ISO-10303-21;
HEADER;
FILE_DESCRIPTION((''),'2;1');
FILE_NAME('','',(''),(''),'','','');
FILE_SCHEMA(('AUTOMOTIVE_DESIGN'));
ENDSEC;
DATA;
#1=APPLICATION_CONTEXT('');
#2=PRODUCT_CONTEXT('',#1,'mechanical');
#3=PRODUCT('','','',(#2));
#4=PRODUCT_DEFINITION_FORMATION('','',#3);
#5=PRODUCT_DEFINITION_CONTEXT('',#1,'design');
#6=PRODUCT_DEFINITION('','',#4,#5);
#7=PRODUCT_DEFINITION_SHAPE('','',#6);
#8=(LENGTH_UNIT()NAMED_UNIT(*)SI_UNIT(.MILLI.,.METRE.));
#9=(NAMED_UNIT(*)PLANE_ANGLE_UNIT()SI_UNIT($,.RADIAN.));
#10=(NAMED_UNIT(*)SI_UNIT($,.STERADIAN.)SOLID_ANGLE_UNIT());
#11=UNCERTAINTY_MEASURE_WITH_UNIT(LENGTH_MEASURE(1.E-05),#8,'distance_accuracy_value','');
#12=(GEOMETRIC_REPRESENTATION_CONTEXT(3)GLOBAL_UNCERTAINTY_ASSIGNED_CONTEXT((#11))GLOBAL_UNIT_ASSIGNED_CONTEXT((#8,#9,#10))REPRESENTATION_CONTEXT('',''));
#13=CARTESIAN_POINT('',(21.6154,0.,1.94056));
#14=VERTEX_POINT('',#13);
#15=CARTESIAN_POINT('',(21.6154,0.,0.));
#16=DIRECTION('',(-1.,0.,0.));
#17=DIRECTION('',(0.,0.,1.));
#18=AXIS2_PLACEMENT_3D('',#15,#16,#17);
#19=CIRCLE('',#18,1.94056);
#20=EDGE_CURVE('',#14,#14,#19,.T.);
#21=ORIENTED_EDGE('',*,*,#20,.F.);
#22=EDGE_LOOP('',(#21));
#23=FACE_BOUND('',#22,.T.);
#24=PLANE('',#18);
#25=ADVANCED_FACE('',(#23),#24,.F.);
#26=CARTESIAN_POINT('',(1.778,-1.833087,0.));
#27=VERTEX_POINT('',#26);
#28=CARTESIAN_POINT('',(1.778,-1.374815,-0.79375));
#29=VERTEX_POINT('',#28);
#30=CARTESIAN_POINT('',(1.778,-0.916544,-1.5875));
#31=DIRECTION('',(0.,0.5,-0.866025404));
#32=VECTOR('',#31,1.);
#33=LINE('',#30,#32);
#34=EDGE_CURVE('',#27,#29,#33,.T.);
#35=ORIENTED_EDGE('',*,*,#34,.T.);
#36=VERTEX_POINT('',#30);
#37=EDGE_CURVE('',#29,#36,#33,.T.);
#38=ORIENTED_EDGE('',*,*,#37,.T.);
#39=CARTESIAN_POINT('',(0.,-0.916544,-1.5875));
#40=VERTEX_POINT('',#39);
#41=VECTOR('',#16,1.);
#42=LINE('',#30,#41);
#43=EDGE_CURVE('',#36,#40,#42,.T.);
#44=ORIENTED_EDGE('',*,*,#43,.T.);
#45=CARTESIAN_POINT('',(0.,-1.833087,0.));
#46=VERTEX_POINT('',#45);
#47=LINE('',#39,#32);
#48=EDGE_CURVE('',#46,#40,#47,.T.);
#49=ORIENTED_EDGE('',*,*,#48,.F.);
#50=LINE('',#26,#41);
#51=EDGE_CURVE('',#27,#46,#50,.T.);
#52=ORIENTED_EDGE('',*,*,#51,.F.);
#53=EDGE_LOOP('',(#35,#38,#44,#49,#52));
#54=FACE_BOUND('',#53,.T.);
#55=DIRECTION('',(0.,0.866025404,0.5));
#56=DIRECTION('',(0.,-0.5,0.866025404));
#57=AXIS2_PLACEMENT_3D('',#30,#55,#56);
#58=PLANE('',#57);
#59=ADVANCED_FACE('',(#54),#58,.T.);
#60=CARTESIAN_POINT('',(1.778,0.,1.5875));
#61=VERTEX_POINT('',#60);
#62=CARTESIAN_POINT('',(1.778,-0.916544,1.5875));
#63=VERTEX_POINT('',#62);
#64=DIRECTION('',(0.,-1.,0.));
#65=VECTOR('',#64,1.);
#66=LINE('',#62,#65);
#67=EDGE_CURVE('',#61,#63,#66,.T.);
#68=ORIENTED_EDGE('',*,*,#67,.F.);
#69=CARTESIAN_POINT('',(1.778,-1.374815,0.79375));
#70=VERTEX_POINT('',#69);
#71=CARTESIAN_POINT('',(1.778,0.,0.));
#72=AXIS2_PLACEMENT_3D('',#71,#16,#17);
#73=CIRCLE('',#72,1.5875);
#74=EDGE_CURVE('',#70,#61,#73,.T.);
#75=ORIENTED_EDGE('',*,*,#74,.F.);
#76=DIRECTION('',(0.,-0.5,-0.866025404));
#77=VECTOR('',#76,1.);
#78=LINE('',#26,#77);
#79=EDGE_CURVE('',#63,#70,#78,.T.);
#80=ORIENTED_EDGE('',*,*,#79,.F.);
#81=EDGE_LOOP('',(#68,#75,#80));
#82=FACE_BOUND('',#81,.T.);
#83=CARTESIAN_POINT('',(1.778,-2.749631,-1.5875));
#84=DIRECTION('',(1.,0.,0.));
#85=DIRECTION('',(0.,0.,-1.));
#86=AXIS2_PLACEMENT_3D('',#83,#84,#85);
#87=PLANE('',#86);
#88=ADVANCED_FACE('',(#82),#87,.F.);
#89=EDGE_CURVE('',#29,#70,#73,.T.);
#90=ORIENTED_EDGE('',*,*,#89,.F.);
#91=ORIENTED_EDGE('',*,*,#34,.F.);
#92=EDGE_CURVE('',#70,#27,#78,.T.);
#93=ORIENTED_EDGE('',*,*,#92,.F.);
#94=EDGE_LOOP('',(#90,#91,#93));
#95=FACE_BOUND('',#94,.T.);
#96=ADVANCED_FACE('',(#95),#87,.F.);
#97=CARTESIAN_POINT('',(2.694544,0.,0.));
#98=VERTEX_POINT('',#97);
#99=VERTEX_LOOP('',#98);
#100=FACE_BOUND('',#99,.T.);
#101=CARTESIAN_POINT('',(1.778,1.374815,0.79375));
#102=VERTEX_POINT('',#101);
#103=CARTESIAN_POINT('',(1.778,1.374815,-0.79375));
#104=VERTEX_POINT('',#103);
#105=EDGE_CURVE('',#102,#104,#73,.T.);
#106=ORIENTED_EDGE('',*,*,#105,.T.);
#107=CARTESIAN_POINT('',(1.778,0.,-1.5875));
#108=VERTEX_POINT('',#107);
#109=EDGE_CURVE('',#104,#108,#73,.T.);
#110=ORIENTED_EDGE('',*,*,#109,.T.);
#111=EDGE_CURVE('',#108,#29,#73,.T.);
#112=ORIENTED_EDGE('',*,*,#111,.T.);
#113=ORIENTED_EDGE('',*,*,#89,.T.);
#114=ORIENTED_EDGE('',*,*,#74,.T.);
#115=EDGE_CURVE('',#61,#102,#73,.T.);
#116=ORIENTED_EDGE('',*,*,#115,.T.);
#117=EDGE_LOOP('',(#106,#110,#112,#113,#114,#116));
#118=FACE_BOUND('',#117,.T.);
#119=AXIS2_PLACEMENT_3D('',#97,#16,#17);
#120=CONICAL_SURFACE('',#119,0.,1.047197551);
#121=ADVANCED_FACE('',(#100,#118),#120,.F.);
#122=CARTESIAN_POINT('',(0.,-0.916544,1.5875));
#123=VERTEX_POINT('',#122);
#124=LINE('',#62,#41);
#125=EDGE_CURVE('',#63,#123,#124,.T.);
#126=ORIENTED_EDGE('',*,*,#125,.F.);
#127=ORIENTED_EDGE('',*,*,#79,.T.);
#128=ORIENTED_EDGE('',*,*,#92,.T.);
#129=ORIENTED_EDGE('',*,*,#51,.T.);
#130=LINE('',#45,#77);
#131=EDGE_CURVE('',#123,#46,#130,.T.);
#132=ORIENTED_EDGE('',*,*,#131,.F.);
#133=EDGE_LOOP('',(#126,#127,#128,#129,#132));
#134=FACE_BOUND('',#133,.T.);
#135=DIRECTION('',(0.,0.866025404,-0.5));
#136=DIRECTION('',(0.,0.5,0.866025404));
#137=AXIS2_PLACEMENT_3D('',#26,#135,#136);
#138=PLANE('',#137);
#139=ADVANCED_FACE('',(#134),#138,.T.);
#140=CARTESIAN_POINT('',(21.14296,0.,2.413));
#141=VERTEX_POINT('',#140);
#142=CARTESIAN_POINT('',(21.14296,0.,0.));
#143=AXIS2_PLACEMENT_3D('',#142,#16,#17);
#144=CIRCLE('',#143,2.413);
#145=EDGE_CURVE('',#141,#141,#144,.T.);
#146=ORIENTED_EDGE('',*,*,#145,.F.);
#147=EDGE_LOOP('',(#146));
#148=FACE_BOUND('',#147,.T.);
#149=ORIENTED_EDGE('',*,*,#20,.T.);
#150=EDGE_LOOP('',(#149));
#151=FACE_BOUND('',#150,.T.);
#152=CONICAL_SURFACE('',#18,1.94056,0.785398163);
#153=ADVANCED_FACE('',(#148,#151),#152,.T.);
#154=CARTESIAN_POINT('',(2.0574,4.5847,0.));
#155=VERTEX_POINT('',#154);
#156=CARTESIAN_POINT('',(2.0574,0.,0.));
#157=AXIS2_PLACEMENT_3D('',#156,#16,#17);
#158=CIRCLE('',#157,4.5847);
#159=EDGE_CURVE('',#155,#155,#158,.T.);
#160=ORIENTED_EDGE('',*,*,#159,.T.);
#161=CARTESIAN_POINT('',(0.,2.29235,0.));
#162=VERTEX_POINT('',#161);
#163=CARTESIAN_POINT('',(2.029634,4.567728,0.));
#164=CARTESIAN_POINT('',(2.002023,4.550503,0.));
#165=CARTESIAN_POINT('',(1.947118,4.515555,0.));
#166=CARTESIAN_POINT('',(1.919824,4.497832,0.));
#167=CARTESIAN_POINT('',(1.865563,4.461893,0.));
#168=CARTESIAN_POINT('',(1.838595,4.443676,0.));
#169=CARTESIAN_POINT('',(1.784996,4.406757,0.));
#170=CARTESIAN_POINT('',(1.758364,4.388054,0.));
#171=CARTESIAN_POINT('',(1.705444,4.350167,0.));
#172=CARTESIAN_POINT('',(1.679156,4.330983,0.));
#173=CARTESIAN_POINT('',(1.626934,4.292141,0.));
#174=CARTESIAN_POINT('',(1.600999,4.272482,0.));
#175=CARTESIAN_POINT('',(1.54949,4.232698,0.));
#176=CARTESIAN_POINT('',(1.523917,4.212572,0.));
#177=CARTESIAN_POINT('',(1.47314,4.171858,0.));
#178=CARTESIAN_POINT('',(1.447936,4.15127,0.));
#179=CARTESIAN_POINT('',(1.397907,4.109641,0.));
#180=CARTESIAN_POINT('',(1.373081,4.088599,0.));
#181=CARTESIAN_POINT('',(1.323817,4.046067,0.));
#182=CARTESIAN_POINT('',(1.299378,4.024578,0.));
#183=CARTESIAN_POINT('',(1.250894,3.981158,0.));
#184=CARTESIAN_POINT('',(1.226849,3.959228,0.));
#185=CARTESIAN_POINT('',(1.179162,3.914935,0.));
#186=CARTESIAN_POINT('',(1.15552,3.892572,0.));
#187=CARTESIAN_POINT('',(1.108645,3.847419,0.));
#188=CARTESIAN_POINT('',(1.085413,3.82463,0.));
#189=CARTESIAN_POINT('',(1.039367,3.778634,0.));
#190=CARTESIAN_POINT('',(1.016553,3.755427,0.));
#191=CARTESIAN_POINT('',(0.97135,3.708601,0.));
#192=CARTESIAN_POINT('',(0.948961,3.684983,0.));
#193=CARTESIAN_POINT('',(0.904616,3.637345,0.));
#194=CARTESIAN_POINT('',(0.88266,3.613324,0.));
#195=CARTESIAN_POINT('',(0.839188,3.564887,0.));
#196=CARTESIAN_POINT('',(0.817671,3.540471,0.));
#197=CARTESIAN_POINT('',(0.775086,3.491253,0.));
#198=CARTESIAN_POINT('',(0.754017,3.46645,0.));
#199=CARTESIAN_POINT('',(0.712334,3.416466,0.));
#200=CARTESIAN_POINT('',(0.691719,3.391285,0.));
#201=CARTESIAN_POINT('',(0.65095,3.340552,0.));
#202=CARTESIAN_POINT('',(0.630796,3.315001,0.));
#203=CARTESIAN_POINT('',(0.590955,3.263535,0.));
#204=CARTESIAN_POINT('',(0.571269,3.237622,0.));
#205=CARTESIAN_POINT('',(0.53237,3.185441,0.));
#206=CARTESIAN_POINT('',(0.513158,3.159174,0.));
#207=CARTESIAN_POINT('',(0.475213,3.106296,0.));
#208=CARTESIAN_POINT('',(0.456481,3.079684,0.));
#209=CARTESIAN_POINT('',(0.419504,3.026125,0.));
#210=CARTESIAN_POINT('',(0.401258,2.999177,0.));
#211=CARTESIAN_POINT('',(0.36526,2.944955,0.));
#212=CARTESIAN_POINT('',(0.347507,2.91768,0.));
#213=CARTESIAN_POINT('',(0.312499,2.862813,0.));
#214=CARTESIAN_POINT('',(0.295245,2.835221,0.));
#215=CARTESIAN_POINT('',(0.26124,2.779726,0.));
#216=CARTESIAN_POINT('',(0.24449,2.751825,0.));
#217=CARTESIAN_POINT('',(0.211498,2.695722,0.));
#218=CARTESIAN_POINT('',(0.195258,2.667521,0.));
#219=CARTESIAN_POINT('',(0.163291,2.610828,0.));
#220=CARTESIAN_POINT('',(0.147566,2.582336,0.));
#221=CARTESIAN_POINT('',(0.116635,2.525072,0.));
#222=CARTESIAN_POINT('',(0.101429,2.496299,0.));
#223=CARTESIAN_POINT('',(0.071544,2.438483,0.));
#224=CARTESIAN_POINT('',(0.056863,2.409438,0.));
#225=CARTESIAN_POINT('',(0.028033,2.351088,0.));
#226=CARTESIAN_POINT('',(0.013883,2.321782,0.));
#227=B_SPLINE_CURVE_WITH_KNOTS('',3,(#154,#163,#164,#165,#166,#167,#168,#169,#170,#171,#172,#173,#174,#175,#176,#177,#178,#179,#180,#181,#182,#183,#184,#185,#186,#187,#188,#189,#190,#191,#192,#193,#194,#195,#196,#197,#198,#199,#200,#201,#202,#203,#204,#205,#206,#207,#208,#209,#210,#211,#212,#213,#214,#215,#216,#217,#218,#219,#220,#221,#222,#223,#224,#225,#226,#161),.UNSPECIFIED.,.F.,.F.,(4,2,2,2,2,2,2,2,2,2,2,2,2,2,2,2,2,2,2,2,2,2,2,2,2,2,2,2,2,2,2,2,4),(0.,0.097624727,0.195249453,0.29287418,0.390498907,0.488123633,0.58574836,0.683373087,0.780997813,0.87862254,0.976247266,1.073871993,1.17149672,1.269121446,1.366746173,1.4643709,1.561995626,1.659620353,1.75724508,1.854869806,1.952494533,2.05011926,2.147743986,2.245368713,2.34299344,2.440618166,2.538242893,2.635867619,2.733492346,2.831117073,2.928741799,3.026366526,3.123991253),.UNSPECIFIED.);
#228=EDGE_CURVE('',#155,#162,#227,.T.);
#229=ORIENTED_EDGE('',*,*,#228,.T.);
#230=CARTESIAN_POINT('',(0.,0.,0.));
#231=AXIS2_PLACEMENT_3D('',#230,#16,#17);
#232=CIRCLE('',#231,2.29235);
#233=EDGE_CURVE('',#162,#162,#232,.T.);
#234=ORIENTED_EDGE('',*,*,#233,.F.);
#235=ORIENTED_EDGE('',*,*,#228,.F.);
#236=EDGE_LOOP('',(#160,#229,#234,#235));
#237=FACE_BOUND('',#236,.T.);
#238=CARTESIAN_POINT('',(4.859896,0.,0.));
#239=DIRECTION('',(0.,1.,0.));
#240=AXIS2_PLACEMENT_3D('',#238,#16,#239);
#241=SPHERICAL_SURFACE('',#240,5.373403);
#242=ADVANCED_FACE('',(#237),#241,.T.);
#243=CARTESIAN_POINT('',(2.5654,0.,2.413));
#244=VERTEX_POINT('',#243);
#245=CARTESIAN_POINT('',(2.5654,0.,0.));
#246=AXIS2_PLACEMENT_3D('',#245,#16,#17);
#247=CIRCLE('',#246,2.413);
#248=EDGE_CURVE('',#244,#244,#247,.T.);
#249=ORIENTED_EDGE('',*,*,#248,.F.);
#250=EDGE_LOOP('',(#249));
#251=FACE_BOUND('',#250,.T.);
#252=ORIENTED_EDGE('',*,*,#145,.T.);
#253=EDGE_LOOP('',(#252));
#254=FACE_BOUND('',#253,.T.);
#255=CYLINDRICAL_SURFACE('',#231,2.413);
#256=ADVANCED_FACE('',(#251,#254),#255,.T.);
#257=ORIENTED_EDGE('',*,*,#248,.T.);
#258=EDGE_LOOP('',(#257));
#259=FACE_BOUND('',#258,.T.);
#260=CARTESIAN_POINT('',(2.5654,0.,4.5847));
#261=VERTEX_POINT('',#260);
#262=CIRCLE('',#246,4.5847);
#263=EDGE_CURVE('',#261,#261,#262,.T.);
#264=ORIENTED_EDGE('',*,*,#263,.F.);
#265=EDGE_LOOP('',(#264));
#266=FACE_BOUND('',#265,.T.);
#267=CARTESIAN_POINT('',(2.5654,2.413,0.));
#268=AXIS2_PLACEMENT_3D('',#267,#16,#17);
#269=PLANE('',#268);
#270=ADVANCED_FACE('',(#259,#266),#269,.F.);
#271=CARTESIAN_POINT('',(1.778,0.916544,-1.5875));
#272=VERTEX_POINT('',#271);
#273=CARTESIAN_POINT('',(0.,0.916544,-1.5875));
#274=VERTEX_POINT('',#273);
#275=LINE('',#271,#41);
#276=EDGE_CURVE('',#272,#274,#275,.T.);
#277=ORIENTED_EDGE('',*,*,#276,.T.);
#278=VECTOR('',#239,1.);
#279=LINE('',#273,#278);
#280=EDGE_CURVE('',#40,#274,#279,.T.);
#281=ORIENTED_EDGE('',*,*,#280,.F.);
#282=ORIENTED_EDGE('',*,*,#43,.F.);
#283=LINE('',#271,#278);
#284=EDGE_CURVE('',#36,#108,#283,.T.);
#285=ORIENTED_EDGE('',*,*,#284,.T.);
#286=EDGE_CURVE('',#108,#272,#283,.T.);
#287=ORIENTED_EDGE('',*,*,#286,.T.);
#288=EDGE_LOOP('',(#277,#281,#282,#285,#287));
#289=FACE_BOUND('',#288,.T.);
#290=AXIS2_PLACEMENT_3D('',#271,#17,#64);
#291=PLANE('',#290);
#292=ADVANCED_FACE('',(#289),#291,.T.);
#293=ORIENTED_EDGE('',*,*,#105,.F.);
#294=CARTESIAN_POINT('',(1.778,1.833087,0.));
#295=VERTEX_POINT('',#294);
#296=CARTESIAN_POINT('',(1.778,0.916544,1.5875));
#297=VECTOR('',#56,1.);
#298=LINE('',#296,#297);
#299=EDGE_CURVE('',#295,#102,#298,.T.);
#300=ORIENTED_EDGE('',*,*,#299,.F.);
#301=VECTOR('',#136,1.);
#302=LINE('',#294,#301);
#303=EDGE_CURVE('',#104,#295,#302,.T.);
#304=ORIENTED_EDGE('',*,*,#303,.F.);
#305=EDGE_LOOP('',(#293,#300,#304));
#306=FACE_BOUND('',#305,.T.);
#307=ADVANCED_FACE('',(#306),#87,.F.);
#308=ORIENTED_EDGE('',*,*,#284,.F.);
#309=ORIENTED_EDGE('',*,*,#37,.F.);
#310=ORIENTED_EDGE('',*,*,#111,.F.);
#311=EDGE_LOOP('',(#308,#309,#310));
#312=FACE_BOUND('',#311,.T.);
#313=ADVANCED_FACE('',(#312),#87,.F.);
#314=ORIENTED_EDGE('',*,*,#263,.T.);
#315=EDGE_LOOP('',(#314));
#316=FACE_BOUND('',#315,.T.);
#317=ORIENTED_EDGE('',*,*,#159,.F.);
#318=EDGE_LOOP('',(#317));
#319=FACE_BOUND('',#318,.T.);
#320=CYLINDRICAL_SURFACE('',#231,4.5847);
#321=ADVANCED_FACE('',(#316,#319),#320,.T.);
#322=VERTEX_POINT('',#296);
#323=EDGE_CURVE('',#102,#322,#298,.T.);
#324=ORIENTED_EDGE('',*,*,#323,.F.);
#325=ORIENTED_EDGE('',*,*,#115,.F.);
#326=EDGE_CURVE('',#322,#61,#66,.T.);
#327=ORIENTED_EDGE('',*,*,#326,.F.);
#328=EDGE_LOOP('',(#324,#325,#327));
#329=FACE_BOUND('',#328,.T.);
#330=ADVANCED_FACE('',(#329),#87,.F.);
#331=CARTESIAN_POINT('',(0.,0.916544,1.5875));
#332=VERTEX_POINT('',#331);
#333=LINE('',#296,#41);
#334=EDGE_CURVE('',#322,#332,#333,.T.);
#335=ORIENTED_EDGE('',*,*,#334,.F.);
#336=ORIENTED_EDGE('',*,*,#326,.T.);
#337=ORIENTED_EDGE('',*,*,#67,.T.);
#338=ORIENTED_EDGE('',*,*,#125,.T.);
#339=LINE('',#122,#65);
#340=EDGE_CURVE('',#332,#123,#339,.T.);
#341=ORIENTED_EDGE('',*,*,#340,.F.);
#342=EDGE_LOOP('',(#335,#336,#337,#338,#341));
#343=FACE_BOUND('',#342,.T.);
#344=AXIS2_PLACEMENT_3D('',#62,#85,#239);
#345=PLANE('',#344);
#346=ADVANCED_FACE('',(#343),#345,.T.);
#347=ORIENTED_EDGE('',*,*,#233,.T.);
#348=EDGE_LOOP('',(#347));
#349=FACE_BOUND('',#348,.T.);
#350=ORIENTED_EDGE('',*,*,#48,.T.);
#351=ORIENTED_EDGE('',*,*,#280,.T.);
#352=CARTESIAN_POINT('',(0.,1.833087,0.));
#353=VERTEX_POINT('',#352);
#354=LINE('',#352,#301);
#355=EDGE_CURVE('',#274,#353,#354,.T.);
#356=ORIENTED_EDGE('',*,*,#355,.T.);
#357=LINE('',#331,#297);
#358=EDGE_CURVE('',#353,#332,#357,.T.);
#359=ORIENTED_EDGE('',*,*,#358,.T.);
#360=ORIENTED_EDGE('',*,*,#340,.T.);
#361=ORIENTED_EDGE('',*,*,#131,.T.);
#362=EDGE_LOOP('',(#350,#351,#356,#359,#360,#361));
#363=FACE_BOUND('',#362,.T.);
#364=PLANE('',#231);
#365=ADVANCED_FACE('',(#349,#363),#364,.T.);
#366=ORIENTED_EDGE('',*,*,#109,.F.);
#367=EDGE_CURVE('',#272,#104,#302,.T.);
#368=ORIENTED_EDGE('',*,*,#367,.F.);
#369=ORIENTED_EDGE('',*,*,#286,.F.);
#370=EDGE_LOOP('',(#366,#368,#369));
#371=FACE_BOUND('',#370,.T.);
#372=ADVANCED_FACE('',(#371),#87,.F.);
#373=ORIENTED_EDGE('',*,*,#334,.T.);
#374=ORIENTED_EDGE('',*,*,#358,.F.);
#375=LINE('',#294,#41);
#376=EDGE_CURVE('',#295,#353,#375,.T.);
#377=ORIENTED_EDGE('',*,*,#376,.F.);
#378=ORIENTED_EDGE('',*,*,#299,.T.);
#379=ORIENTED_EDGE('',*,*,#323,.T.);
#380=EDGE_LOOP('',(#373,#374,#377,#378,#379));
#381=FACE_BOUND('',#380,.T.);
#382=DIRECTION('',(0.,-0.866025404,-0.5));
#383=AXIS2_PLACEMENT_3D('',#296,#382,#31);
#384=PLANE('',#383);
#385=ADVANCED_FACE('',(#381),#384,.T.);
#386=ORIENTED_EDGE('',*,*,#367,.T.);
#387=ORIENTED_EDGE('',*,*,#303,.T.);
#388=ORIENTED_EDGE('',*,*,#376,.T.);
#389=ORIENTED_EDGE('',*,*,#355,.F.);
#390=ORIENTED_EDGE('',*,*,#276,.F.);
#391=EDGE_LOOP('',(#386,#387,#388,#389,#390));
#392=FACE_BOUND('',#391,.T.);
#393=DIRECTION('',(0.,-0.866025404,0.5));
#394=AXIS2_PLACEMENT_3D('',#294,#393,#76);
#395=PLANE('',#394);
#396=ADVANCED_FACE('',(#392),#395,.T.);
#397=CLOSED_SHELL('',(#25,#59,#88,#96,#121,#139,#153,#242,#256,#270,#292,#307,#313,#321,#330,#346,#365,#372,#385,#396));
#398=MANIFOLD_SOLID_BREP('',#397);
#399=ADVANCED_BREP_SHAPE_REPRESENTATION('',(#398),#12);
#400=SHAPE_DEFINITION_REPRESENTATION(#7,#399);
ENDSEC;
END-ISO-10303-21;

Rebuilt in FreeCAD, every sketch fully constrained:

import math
import FreeCAD as App
import Part
import Sketcher

V = App.Vector
Q = App.Units.Quantity

doc = App.newDocument("Part")
body = doc.addObject("PartDesign::Body", "Body")

# Sketch on XY plane
sketch1 = body.newObject("Sketcher::SketchObject", "Sketch")
sketch1.AttachmentSupport = (doc.getObject("XY_Plane"), [""])
sketch1.MapMode = "FlatFace"
sketch1.addGeometry([
    Part.LineSegment(V(21.6, 0, 0), V(21.6, 1.9, 0)),  # 0
    Part.LineSegment(V(21.6, 1.9, 0), V(21.1, 2.4, 0)),  # 1
    Part.LineSegment(V(21.1, 2.4, 0), V(2.6, 2.4, 0)),  # 2
    Part.LineSegment(V(2.6, 2.4, 0), V(2.6, 4.6, 0)),  # 3
    Part.LineSegment(V(2.6, 4.6, 0), V(2.1, 4.6, 0)),  # 4
    Part.ArcOfCircle(Part.Circle(V(4.9, 0, 0), V(0, 0, 1), 5.4), math.radians(121), math.radians(155)),  # 5
    Part.LineSegment(V(0, 2.3, 0), V(0, 0, 0)),  # 6
    Part.LineSegment(V(0, 0, 0), V(21.6, 0, 0)),  # 7
], False)
sketch1.addConstraint([
    Sketcher.Constraint("Coincident", 0, 2, 1, 1),
    Sketcher.Constraint("Coincident", 1, 2, 2, 1),
    Sketcher.Constraint("Coincident", 2, 2, 3, 1),
    Sketcher.Constraint("Coincident", 3, 2, 4, 1),
    Sketcher.Constraint("Coincident", 4, 2, 5, 1),
    Sketcher.Constraint("Coincident", 5, 2, 6, 1),
    Sketcher.Constraint("Coincident", 6, 2, 7, 1),
    Sketcher.Constraint("Coincident", 7, 2, 0, 1),
    Sketcher.Constraint("Vertical", 0),
    Sketcher.Constraint("Horizontal", 2),
    Sketcher.Constraint("Vertical", 3),
    Sketcher.Constraint("Horizontal", 4),
    Sketcher.Constraint("Vertical", 6),
    Sketcher.Constraint("Horizontal", 7),
    Sketcher.Constraint("Coincident", 6, 2, -1, 1),
    Sketcher.Constraint("PointOnObject", 5, 3, -1),
    Sketcher.Constraint("Angle", 1, Q("135 deg")),
    Sketcher.Constraint("DistanceX", 4, 2, 4, 1, Q("0.02 in")),
    Sketcher.Constraint("DistanceX", 7, 1, 7, 2, Q("0.851 in")),
    Sketcher.Constraint("DistanceX", 2, 2, 0, 2, Q("0.75 in")),
    Sketcher.Constraint("DistanceX", 2, 2, 2, 1, Q("0.7314 in")),
    Sketcher.Constraint("DistanceY", 0, 1, 0, 2, Q("0.0764 in")),
    Sketcher.Constraint("DistanceY", 3, 1, 3, 2, Q("0.0855 in")),
    Sketcher.Constraint("Radius", 5, 5.373403),
])
revolution = body.newObject("PartDesign::Revolution", "Revolution")
revolution.Profile = sketch1
revolution.ReferenceAxis = (sketch1, ["H_Axis"])
revolution.Angle = 360

# Sketch on XY plane
sketch2 = body.newObject("Sketcher::SketchObject", "Sketch001")
sketch2.AttachmentSupport = (doc.getObject("XY_Plane"), [""])
sketch2.MapMode = "FlatFace"
sketch2.addGeometry([
    Part.LineSegment(V(1.8, 1.6, 0), V(0, 1.6, 0)),
    Part.LineSegment(V(0, 1.6, 0), V(0, 0, 0)),
    Part.LineSegment(V(0, 0, 0), V(2.7, 0, 0)),
    Part.LineSegment(V(2.7, 0, 0), V(1.8, 1.6, 0)),
], False)
sketch2.addConstraint([
    Sketcher.Constraint("Coincident", 0, 2, 1, 1),
    Sketcher.Constraint("Coincident", 1, 2, 2, 1),
    Sketcher.Constraint("Coincident", 2, 2, 3, 1),
    Sketcher.Constraint("Coincident", 3, 2, 0, 1),
    Sketcher.Constraint("Horizontal", 0),
    Sketcher.Constraint("Vertical", 1),
    Sketcher.Constraint("Horizontal", 2),
    Sketcher.Constraint("Coincident", 1, 2, -1, 1),
    Sketcher.Constraint("Angle", 3, Q("120 deg")),
    Sketcher.Constraint("DistanceX", 0, 2, 0, 1, Q("0.07 in")),
    Sketcher.Constraint("DistanceY", 1, 2, 1, 1, Q("0.0625 in")),
])
groove = body.newObject("PartDesign::Groove", "Groove")
groove.Profile = sketch2
groove.ReferenceAxis = (sketch2, ["H_Axis"])
groove.Angle = 360

# Sketch on YZ plane
sketch3 = body.newObject("Sketcher::SketchObject", "Sketch002")
sketch3.AttachmentSupport = (doc.getObject("YZ_Plane"), [""])
sketch3.MapMode = "FlatFace"
sketch3.addGeometry([
    Part.LineSegment(V(0.9, 1.6, 0), V(-0.9, 1.6, 0)),  # 0
    Part.LineSegment(V(-0.9, 1.6, 0), V(-1.8, 0, 0)),  # 1
    Part.LineSegment(V(-1.8, 0, 0), V(-0.9, -1.6, 0)),  # 2
    Part.LineSegment(V(-0.9, -1.6, 0), V(0.9, -1.6, 0)),  # 3
    Part.LineSegment(V(0.9, -1.6, 0), V(1.8, 0, 0)),  # 4
    Part.LineSegment(V(1.8, 0, 0), V(0.9, 1.6, 0)),  # 5
], False)
sketch3.addConstraint([
    Sketcher.Constraint("Coincident", 0, 2, 1, 1),
    Sketcher.Constraint("Coincident", 1, 2, 2, 1),
    Sketcher.Constraint("Coincident", 2, 2, 3, 1),
    Sketcher.Constraint("Coincident", 3, 2, 4, 1),
    Sketcher.Constraint("Coincident", 4, 2, 5, 1),
    Sketcher.Constraint("Coincident", 5, 2, 0, 1),
    Sketcher.Constraint("Horizontal", 0),
    Sketcher.Constraint("Horizontal", 3),
    Sketcher.Constraint("Symmetric", 0, 2, 3, 2, -1, 1),
    Sketcher.Constraint("Symmetric", 1, 2, 4, 2, -1, 1),
    Sketcher.Constraint("PointOnObject", 1, 2, -1),
    Sketcher.Constraint("Parallel", 2, 5),
    Sketcher.Constraint("Vertical", 0, 2, 2, 2),
    Sketcher.Constraint("Angle", 1, Q("-120 deg")),
    Sketcher.Constraint("DistanceY", -1, 1, 0, 2, Q("0.0625 in")),
    Sketcher.Constraint("DistanceX", 0, 2, 0, 1, 1.833087),
])
pocket1 = body.newObject("PartDesign::Pocket", "Pocket")
pocket1.Profile = sketch3
pocket1.Length = Q("0.07 in")
pocket1.Reversed = True

doc.recompute()
